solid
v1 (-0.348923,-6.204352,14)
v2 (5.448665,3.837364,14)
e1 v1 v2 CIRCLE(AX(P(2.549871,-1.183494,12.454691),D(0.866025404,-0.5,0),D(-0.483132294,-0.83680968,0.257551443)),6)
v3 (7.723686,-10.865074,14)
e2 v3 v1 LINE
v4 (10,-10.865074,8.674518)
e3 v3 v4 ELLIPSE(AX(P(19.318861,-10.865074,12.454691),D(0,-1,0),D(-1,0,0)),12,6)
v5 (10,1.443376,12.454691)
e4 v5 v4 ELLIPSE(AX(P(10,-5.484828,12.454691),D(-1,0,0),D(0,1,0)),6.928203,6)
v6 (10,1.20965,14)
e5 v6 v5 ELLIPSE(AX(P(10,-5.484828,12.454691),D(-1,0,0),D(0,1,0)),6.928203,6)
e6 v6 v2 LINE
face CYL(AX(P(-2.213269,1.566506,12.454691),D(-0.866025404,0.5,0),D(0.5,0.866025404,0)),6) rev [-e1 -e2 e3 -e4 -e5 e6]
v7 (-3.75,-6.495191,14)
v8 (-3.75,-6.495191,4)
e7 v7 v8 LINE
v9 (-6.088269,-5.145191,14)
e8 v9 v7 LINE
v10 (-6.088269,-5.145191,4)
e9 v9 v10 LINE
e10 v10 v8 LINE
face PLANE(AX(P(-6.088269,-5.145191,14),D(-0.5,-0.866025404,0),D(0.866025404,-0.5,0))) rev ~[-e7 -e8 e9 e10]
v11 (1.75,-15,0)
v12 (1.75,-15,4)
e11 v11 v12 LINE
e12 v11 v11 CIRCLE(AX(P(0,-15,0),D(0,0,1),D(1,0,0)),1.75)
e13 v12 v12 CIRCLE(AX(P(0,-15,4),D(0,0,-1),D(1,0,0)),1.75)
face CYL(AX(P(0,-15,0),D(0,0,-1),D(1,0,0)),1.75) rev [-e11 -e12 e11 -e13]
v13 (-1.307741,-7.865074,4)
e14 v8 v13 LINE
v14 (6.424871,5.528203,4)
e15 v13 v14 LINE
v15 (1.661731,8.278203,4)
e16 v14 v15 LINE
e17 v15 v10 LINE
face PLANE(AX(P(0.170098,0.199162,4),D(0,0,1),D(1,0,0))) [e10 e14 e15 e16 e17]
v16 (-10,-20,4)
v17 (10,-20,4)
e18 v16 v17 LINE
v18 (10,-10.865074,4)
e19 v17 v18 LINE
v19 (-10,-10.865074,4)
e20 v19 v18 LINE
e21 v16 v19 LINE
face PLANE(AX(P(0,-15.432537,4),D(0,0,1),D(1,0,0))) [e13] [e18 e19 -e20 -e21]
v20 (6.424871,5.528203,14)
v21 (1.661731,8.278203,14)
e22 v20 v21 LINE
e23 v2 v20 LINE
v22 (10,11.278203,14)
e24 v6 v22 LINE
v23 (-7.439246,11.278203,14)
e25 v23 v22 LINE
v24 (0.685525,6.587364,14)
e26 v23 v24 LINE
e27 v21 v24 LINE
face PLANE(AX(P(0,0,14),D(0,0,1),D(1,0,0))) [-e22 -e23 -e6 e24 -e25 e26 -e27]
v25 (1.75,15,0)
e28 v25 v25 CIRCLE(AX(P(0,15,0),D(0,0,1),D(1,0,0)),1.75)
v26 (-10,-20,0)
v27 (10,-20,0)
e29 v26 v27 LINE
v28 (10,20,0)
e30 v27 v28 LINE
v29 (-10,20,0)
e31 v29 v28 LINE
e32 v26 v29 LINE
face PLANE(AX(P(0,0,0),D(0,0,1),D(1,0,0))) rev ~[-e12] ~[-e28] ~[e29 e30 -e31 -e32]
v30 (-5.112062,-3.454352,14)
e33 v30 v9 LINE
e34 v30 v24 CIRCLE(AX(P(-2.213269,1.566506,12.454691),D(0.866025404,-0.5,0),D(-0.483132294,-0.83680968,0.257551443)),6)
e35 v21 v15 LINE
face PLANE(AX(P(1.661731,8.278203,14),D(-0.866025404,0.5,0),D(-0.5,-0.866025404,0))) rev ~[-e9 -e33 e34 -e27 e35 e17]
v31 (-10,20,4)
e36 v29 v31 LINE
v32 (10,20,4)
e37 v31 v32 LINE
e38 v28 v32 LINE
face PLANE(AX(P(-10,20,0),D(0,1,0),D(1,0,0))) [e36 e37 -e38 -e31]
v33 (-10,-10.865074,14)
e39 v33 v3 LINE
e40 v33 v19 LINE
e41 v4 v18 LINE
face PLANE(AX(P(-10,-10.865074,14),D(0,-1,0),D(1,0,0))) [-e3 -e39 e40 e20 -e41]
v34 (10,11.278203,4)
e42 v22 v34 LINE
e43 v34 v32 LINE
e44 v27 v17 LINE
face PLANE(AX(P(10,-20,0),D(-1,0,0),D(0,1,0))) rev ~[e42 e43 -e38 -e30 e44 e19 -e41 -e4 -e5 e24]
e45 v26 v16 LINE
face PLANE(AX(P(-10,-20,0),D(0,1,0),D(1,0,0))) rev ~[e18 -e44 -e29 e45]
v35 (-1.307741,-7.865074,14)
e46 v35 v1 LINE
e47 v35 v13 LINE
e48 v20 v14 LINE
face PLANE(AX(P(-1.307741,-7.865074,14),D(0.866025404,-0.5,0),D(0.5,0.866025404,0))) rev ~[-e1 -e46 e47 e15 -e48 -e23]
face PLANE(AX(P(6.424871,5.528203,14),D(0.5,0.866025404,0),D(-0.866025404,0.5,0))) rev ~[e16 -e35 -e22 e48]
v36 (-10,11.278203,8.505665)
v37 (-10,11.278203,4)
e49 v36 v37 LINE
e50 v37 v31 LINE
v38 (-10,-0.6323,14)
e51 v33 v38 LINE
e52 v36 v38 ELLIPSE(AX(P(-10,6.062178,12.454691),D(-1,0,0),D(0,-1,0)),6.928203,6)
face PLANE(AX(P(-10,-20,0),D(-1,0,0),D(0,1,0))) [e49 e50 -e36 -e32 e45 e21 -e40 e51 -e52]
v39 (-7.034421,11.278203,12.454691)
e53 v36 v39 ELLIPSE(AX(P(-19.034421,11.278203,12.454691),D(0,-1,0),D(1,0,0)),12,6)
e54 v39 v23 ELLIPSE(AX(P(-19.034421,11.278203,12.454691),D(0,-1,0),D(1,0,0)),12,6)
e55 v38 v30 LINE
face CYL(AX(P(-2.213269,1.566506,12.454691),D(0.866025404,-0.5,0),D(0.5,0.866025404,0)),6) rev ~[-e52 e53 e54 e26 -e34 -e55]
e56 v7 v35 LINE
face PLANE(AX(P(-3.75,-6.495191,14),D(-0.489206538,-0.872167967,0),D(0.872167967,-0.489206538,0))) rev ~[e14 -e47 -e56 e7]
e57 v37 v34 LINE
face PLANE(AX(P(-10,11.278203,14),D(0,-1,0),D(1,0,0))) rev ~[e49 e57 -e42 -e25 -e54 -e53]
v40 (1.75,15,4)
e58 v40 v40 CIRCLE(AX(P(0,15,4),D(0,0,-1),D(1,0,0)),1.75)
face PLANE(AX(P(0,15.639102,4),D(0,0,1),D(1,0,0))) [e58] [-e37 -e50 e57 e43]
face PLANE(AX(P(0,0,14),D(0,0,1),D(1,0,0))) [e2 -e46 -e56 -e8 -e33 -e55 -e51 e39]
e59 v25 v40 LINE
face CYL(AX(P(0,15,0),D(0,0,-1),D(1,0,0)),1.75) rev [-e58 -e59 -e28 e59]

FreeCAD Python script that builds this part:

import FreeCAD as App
import Part
import Sketcher
from FreeCAD import Vector
Q = App.Units.Quantity


def add_polygon(sketch, points):
    """Adds a closed chain of lines whose ends are joined by coincident constraints."""
    first, n = sketch.GeometryCount, len(points)
    for a, b in zip(points, points[1:] + points[:1]):
        sketch.addGeometry(Part.LineSegment(App.Vector(*a, 0), App.Vector(*b, 0)), False)
    for i in range(n):
        sketch.addConstraint(Sketcher.Constraint("Coincident", first + i, 2, first + (i + 1) % n, 1))

doc = App.newDocument("Part")
params = doc.addObject("Spreadsheet::Sheet", "Params")
for row, (alias, value) in enumerate([
    ("sketch1_diameter", "3.5 mm"),
    ("sketch1_width", "20 mm"),
    ("sketch1_height", "40 mm"),
    ("pad1_length", "14 mm"),
    ("sketch2_width", "20 mm"),
    ("sketch2_length", "2.7 mm"),
    ("sketch2_length2", "5.5 mm"),
    ("sketch2_length3", "15.5 mm"),
    ("pocket1_length", "10 mm"),
    ("sketch3_diameter", "12 mm"),
], start=1):
    params.set(f"A{row}", alias)
    params.set(f"B{row}", "=" + value)
    params.setAlias(f"B{row}", alias)

body = doc.addObject("PartDesign::Body", "Body")

sketch1 = body.newObject("Sketcher::SketchObject", "Sketch")
sketch1.AttachmentSupport = (doc.getObject("XY_Plane"), [""])
sketch1.MapMode = "FlatFace"
add_polygon(sketch1, [(-10, 20), (-10, -20), (10, -20), (10, 20)])
sketch1.addGeometry(Part.Circle(Vector(0, -15, 0), Vector(0, 0, 1), 1.8), False)
sketch1.addGeometry(Part.Circle(Vector(0, 15, 0), Vector(0, 0, 1), 1.8), False)
sketch1.addConstraint(Sketcher.Constraint("Vertical", 0))
sketch1.addConstraint(Sketcher.Constraint("Horizontal", 1))
sketch1.addConstraint(Sketcher.Constraint("Vertical", 2))
sketch1.addConstraint(Sketcher.Constraint("Horizontal", 3))
sketch1.addConstraint(Sketcher.Constraint("Equal", 4, 5))
sketch1.addConstraint(Sketcher.Constraint("Symmetric", 4, 3, 5, 3, -1, 1))
sketch1.addConstraint(Sketcher.Constraint("Symmetric", 0, 2, 2, 2, -1, 1))
sketch1.addConstraint(Sketcher.Constraint("PointOnObject", 4, 3, -2))
sketch1.addConstraint(Sketcher.Constraint("Diameter", 4, 3.5))
sketch1.addConstraint(Sketcher.Constraint("DistanceX", 1, 1, 1, 2, 20.0))
sketch1.addConstraint(Sketcher.Constraint("DistanceY", 0, 2, 0, 1, 40.0))
sketch1.addConstraint(Sketcher.Constraint("DistanceY", 4, 3, -1, 1, 15.0))
sketch1.setExpression("Constraints[12]", "Params.sketch1_diameter")
sketch1.setExpression("Constraints[13]", "Params.sketch1_width")
sketch1.setExpression("Constraints[14]", "Params.sketch1_height")
pad1 = body.newObject("PartDesign::Pad", "Pad")
pad1.Profile = sketch1
pad1.setExpression("Length", "Params.pad1_length")

sketch2 = body.newObject("Sketcher::SketchObject", "Sketch001")
sketch2.AttachmentSupport = (doc.getObject("XY_Plane"), [""])
sketch2.MapMode = "FlatFace"
sketch2.AttachmentOffset = App.Placement(Vector(0, 0, 14), App.Rotation())
add_polygon(sketch2, [(-6.1, -5.1), (-3.8, -6.5), (-1.3, -7.9), (6.4, 5.5), (1.7, 8.3)])
add_polygon(sketch2, [(-10, 20), (-10, 11.3), (10, 11.3), (10, 20)])
add_polygon(sketch2, [(-10, -10.9), (-10, -20), (10, -20), (10, -10.9)])
sketch2.addConstraint(Sketcher.Constraint("Vertical", 5))
sketch2.addConstraint(Sketcher.Constraint("Horizontal", 6))
sketch2.addConstraint(Sketcher.Constraint("Vertical", 7))
sketch2.addConstraint(Sketcher.Constraint("Horizontal", 8))
sketch2.addConstraint(Sketcher.Constraint("Vertical", 9))
sketch2.addConstraint(Sketcher.Constraint("Horizontal", 10))
sketch2.addConstraint(Sketcher.Constraint("Vertical", 11))
sketch2.addConstraint(Sketcher.Constraint("Horizontal", 12))
sketch2.addConstraint(Sketcher.Constraint("Symmetric", 7, 2, 9, 2, -1, 1))
sketch2.addConstraint(Sketcher.Constraint("Perpendicular", 0, 2))
sketch2.addConstraint(Sketcher.Constraint("Perpendicular", 2, 3))
sketch2.addConstraint(Sketcher.Constraint("Perpendicular", 3, 4))
sketch2.addConstraint(Sketcher.Constraint("Vertical", 8, 2, 9, 2))
sketch2.addConstraint(Sketcher.Constraint("Vertical", 7, 2, 10, 2))
sketch2.addConstraint(Sketcher.Constraint("DistanceX", 6, 1, 6, 2, 20.0))
sketch2.addConstraint(Sketcher.Constraint("Angle", 0, Q("-30 deg")))
sketch2.addConstraint(Sketcher.Constraint("DistanceY", -1, 1, 7, 2, 20.0))
sketch2.addConstraint(Sketcher.Constraint("DistanceY", 3, 2, 5, 2, 3.0))
sketch2.addConstraint(Sketcher.Constraint("DistanceY", 11, 2, 1, 2, 3.0))
sketch2.addConstraint(Sketcher.Constraint("Distance", 0, 2.7))
sketch2.addConstraint(Sketcher.Constraint("Distance", 3, 5.5))
sketch2.addConstraint(Sketcher.Constraint("Distance", 4, 15.5))
sketch2.addConstraint(Sketcher.Constraint("DistanceX", 0, 2, -1, 1, 3.75))
sketch2.addConstraint(Sketcher.Constraint("DistanceY", 5, 2, 5, 1, 8.721797))
sketch2.addConstraint(Sketcher.Constraint("DistanceY", 9, 2, 9, 1, 9.134926))
sketch2.setExpression("Constraints[27]", "Params.sketch2_width")
sketch2.setExpression("Constraints[32]", "Params.sketch2_length")
sketch2.setExpression("Constraints[33]", "Params.sketch2_length2")
sketch2.setExpression("Constraints[34]", "Params.sketch2_length3")
pocket1 = body.newObject("PartDesign::Pocket", "Pocket")
pocket1.Profile = sketch2
pocket1.setExpression("Length", "Params.pocket1_length")

sketch3 = body.newObject("Sketcher::SketchObject", "Sketch002")
sketch3.Placement = App.Placement(Vector(-2.338269, 1.35, 0), App.Rotation(Vector(0.5, 0.866025404, 0), Vector(0, 0, 1), Vector(0.866025404, -0.5, 0), "ZXY"))
sketch3.addGeometry(Part.Circle(Vector(0, 12, 0), Vector(0, 0, 1), 6), False)
sketch3.addConstraint(Sketcher.Constraint("Diameter", 0, 12.0))
sketch3.addConstraint(Sketcher.Constraint("DistanceX", -1, 1, 0, 3, 0.25))
sketch3.addConstraint(Sketcher.Constraint("DistanceY", -1, 1, 0, 3, 12.454691))
sketch3.setExpression("Constraints[0]", "Params.sketch3_diameter")
pocket2 = body.newObject("PartDesign::Pocket", "Pocket001")
pocket2.Profile = sketch3
pocket2.Type = "ThroughAll"
pocket2.Midplane = True

doc.recompute()
